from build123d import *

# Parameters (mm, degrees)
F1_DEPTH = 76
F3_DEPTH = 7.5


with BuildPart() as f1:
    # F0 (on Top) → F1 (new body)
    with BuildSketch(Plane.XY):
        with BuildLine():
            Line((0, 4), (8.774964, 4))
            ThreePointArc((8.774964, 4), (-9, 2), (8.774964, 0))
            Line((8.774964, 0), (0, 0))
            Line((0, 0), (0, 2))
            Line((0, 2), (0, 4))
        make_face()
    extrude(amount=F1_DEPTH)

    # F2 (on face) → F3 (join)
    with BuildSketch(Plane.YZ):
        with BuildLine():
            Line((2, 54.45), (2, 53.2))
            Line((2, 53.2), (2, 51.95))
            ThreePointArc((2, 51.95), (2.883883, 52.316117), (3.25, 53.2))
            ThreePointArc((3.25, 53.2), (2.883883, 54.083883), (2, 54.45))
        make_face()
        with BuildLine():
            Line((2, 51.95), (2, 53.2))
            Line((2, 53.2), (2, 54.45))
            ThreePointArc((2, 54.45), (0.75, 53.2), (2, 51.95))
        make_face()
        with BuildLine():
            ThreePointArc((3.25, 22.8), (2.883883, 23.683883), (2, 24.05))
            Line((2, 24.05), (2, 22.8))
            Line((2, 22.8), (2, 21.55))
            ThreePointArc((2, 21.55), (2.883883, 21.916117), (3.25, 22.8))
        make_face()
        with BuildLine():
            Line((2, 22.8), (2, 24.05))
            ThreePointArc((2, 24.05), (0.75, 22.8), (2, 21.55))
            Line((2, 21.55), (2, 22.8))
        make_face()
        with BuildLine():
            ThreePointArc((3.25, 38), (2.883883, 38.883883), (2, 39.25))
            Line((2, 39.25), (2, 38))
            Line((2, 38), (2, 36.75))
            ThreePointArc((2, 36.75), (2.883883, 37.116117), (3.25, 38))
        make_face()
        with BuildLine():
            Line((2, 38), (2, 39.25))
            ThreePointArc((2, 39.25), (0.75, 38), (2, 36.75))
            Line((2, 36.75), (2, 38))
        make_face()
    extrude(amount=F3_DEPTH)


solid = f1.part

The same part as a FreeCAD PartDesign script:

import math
import FreeCAD as App
import Part
import Sketcher
Q = App.Units.Quantity

doc = App.newDocument("Part")
body = doc.addObject("PartDesign::Body", "Body")

# Sketch on XY plane
sketch1 = body.newObject("Sketcher::SketchObject", "Sketch")
sketch1.AttachmentSupport = (doc.getObject("XY_Plane"), [""])
sketch1.MapMode = "FlatFace"
sketch1.addGeometry([
    Part.LineSegment(App.Vector(0, 4, 0), App.Vector(8.8, 4, 0)),
    Part.ArcOfCircle(Part.Circle(App.Vector(0, 2, 0), App.Vector(0, 0, 1), 9), math.radians(13), math.radians(347)),
    Part.LineSegment(App.Vector(8.8, 0, 0), App.Vector(0, 0, 0)),
    Part.LineSegment(App.Vector(0, 0, 0), App.Vector(0, 4, 0)),
], False)
sketch1.addConstraint([
    Sketcher.Constraint("Coincident", 0, 2, 1, 1),
    Sketcher.Constraint("Coincident", 1, 2, 2, 1),
    Sketcher.Constraint("Coincident", 2, 2, 3, 1),
    Sketcher.Constraint("Coincident", 3, 2, 0, 1),
    Sketcher.Constraint("Horizontal", 0),
    Sketcher.Constraint("Horizontal", 2),
    Sketcher.Constraint("Vertical", 3),
    Sketcher.Constraint("Coincident", 2, 2, -1, 1),
    Sketcher.Constraint("PointOnObject", 1, 3, -2),
    Sketcher.Constraint("Vertical", 0, 2, 1, 2),
    Sketcher.Constraint("Radius", 1, Q("9 mm")),
    Sketcher.Constraint("DistanceY", 3, 1, 3, 2, Q("4 mm")),
])
pad1 = body.newObject("PartDesign::Pad", "Pad")
pad1.Profile = sketch1
pad1.Length = 76

# Sketch on YZ plane
sketch2 = body.newObject("Sketcher::SketchObject", "Sketch001")
sketch2.AttachmentSupport = (doc.getObject("YZ_Plane"), [""])
sketch2.MapMode = "FlatFace"
sketch2.addGeometry([
    Part.ArcOfCircle(Part.Circle(App.Vector(2, 53.2, 0), App.Vector(0, 0, 1), 1.3), math.radians(-90), math.radians(0)),  # 0
    Part.ArcOfCircle(Part.Circle(App.Vector(2, 53.2, 0), App.Vector(0, 0, 1), 1.3), math.radians(0), math.radians(90)),  # 1
    Part.ArcOfCircle(Part.Circle(App.Vector(2, 53.2, 0), App.Vector(0, 0, 1), 1.2), math.radians(90), math.radians(270)),  # 2
    Part.ArcOfCircle(Part.Circle(App.Vector(2, 22.8, 0), App.Vector(0, 0, 1), 1.3), math.radians(0), math.radians(90)),  # 3
    Part.ArcOfCircle(Part.Circle(App.Vector(2, 22.8, 0), App.Vector(0, 0, 1), 1.2), math.radians(90), math.radians(270)),  # 4
    Part.ArcOfCircle(Part.Circle(App.Vector(2, 22.8, 0), App.Vector(0, 0, 1), 1.3), math.radians(-90), math.radians(0)),  # 5
    Part.ArcOfCircle(Part.Circle(App.Vector(2, 38, 0), App.Vector(0, 0, 1), 1.3), math.radians(0), math.radians(90)),  # 6
    Part.ArcOfCircle(Part.Circle(App.Vector(2, 38, 0), App.Vector(0, 0, 1), 1.2), math.radians(90), math.radians(270)),  # 7
    Part.ArcOfCircle(Part.Circle(App.Vector(2, 38, 0), App.Vector(0, 0, 1), 1.3), math.radians(-90), math.radians(0)),  # 8
], False)
sketch2.addConstraint([
    Sketcher.Constraint("Coincident", 0, 2, 1, 1),
    Sketcher.Constraint("Tangent", 1, 2, 2, 1),
    Sketcher.Constraint("Tangent", 2, 2, 0, 1),
    Sketcher.Constraint("Tangent", 3, 2, 4, 1),
    Sketcher.Constraint("Tangent", 4, 2, 5, 1),
    Sketcher.Constraint("Coincident", 5, 2, 3, 1),
    Sketcher.Constraint("Tangent", 6, 2, 7, 1),
    Sketcher.Constraint("Tangent", 7, 2, 8, 1),
    Sketcher.Constraint("Coincident", 8, 2, 6, 1),
    Sketcher.Constraint("Equal", 1, 2),
    Sketcher.Constraint("Equal", 2, 3),
    Sketcher.Constraint("Equal", 3, 4),
    Sketcher.Constraint("Equal", 5, 6),
    Sketcher.Constraint("Equal", 6, 7),
    Sketcher.Constraint("Horizontal", 2, 3, 0, 2),
    Sketcher.Constraint("Horizontal", 4, 3, 5, 2),
    Sketcher.Constraint("Horizontal", 7, 3, 8, 2),
    Sketcher.Constraint("Vertical", 2, 3, 3, 3),
    Sketcher.Constraint("Vertical", 5, 3, 6, 3),
    Sketcher.Constraint("Vertical", 8, 3, 1, 2),
    Sketcher.Constraint("Vertical", 1, 2, 2, 2),
    Sketcher.Constraint("Vertical", 2, 2, 3, 2),
    Sketcher.Constraint("Vertical", 3, 2, 4, 2),
    Sketcher.Constraint("Vertical", 4, 2, 6, 2),
    Sketcher.Constraint("Vertical", 6, 2, 7, 2),
    Sketcher.Constraint("Radius", 0, Q("1.250002 mm")),
    Sketcher.Constraint("DistanceX", -1, 1, 0, 3, Q("1.999998 mm")),
    Sketcher.Constraint("DistanceY", -1, 1, 6, 3, Q("37.999998 mm")),
    Sketcher.Constraint("DistanceY", -1, 1, 0, 3, Q("53.200002 mm")),
    Sketcher.Constraint("DistanceY", -1, 1, 3, 3, Q("22.799998 mm")),
])
pad2 = body.newObject("PartDesign::Pad", "Pad001")
pad2.Profile = sketch2
pad2.Length = 7.5

doc.recompute()
